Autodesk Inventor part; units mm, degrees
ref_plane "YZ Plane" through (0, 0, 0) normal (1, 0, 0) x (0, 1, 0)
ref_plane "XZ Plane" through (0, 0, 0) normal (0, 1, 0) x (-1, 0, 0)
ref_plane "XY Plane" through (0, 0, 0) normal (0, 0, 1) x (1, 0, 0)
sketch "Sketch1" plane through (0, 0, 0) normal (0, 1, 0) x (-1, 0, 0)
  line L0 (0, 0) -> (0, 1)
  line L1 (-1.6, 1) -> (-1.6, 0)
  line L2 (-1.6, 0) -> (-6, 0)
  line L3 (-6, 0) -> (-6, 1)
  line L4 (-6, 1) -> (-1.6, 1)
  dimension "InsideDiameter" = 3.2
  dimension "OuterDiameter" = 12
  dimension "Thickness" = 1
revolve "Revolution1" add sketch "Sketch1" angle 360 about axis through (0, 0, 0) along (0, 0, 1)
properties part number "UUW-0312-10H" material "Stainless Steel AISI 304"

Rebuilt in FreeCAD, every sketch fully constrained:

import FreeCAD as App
import Part
import Sketcher

V = App.Vector
Q = App.Units.Quantity

doc = App.newDocument("Part")
body = doc.addObject("PartDesign::Body", "Body")

# Sketch on XZ plane
sketch1 = body.newObject("Sketcher::SketchObject", "Sketch")
sketch1.AttachmentSupport = (doc.getObject("XZ_Plane"), [""])
sketch1.MapMode = "FlatFace"
sketch1.addGeometry([
    Part.LineSegment(V(1.6, 0, 0), V(1.6, 1, 0)),
    Part.LineSegment(V(1.6, 1, 0), V(6, 1, 0)),
    Part.LineSegment(V(6, 1, 0), V(6, 0, 0)),
    Part.LineSegment(V(6, 0, 0), V(1.6, 0, 0)),
], False)
sketch1.addConstraint([
    Sketcher.Constraint("Coincident", 0, 2, 1, 1),
    Sketcher.Constraint("Coincident", 1, 2, 2, 1),
    Sketcher.Constraint("Coincident", 2, 2, 3, 1),
    Sketcher.Constraint("Coincident", 3, 2, 0, 1),
    Sketcher.Constraint("Vertical", 0),
    Sketcher.Constraint("Horizontal", 1),
    Sketcher.Constraint("Vertical", 2),
    Sketcher.Constraint("Horizontal", 3),
    Sketcher.Constraint("PointOnObject", 2, 2, -1),
    Sketcher.Constraint("DistanceY", 0, 1, 0, 2, Q("1 mm")),
    Sketcher.Constraint("DistanceX", 1, 1, 1, 2, Q("4.4 mm")),
    Sketcher.Constraint("DistanceX", -1, 1, 1, 2, Q("6 mm")),
])
revolution = body.newObject("PartDesign::Revolution", "Revolution")
revolution.Profile = sketch1
revolution.ReferenceAxis = (sketch1, ["V_Axis"])
revolution.Angle = 360

doc.recompute()
